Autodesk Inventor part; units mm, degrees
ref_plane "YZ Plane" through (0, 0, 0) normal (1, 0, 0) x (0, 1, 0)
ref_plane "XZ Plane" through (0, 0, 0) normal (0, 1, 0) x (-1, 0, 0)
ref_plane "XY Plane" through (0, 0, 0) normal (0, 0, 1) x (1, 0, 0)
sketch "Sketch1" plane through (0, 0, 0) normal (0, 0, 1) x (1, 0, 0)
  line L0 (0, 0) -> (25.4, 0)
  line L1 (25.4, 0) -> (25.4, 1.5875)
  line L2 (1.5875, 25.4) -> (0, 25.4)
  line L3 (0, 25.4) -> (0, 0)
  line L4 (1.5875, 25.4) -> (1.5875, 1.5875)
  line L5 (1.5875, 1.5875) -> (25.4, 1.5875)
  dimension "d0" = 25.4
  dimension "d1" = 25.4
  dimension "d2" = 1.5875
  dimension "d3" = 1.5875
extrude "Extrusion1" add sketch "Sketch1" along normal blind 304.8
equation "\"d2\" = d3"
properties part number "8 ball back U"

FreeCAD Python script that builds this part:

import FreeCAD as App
import Part
import Sketcher
from FreeCAD import Vector
Q = App.Units.Quantity


def add_polygon(sketch, points):
    """Adds a closed chain of lines whose ends are joined by coincident constraints."""
    first, n = sketch.GeometryCount, len(points)
    for a, b in zip(points, points[1:] + points[:1]):
        sketch.addGeometry(Part.LineSegment(App.Vector(*a, 0), App.Vector(*b, 0)), False)
    for i in range(n):
        sketch.addConstraint(Sketcher.Constraint("Coincident", first + i, 2, first + (i + 1) % n, 1))

doc = App.newDocument("Part")
body = doc.addObject("PartDesign::Body", "Body")

# Sketch on XY plane
sketch1 = doc.addObject("Sketcher::SketchObject", "Sketch")
body.addObject(sketch1)
sketch1.AttachmentSupport = (doc.XY_Plane, [""])
sketch1.MapMode = "FlatFace"
add_polygon(sketch1, [(0, 25.4), (0, 0), (25.4, 0), (25.4, 1.5875), (1.5875, 1.5875), (1.5875, 25.4)])  # lines 0-5
sketch1.addConstraint(Sketcher.Constraint("Vertical", 0))
sketch1.addConstraint(Sketcher.Constraint("Horizontal", 1))
sketch1.addConstraint(Sketcher.Constraint("Vertical", 2))
sketch1.addConstraint(Sketcher.Constraint("Horizontal", 3))
sketch1.addConstraint(Sketcher.Constraint("Vertical", 4))
sketch1.addConstraint(Sketcher.Constraint("Horizontal", 5))
sketch1.addConstraint(Sketcher.Constraint("Coincident", 0, 2, -1, 1))
sketch1.addConstraint(Sketcher.Constraint("Equal", 1, 0))
sketch1.addConstraint(Sketcher.Constraint("Equal", 5, 2))
sketch1.addConstraint(Sketcher.Constraint("DistanceX", 1, 1, 1, 2, Q("1 in")))
sketch1.addConstraint(Sketcher.Constraint("DistanceX", 5, 2, 5, 1, Q("0.0625 in")))
pad1 = doc.addObject("PartDesign::Pad", "Pad")
body.addObject(pad1)
pad1.Profile = sketch1
pad1.Length = Q("12 in")

doc.recompute()
